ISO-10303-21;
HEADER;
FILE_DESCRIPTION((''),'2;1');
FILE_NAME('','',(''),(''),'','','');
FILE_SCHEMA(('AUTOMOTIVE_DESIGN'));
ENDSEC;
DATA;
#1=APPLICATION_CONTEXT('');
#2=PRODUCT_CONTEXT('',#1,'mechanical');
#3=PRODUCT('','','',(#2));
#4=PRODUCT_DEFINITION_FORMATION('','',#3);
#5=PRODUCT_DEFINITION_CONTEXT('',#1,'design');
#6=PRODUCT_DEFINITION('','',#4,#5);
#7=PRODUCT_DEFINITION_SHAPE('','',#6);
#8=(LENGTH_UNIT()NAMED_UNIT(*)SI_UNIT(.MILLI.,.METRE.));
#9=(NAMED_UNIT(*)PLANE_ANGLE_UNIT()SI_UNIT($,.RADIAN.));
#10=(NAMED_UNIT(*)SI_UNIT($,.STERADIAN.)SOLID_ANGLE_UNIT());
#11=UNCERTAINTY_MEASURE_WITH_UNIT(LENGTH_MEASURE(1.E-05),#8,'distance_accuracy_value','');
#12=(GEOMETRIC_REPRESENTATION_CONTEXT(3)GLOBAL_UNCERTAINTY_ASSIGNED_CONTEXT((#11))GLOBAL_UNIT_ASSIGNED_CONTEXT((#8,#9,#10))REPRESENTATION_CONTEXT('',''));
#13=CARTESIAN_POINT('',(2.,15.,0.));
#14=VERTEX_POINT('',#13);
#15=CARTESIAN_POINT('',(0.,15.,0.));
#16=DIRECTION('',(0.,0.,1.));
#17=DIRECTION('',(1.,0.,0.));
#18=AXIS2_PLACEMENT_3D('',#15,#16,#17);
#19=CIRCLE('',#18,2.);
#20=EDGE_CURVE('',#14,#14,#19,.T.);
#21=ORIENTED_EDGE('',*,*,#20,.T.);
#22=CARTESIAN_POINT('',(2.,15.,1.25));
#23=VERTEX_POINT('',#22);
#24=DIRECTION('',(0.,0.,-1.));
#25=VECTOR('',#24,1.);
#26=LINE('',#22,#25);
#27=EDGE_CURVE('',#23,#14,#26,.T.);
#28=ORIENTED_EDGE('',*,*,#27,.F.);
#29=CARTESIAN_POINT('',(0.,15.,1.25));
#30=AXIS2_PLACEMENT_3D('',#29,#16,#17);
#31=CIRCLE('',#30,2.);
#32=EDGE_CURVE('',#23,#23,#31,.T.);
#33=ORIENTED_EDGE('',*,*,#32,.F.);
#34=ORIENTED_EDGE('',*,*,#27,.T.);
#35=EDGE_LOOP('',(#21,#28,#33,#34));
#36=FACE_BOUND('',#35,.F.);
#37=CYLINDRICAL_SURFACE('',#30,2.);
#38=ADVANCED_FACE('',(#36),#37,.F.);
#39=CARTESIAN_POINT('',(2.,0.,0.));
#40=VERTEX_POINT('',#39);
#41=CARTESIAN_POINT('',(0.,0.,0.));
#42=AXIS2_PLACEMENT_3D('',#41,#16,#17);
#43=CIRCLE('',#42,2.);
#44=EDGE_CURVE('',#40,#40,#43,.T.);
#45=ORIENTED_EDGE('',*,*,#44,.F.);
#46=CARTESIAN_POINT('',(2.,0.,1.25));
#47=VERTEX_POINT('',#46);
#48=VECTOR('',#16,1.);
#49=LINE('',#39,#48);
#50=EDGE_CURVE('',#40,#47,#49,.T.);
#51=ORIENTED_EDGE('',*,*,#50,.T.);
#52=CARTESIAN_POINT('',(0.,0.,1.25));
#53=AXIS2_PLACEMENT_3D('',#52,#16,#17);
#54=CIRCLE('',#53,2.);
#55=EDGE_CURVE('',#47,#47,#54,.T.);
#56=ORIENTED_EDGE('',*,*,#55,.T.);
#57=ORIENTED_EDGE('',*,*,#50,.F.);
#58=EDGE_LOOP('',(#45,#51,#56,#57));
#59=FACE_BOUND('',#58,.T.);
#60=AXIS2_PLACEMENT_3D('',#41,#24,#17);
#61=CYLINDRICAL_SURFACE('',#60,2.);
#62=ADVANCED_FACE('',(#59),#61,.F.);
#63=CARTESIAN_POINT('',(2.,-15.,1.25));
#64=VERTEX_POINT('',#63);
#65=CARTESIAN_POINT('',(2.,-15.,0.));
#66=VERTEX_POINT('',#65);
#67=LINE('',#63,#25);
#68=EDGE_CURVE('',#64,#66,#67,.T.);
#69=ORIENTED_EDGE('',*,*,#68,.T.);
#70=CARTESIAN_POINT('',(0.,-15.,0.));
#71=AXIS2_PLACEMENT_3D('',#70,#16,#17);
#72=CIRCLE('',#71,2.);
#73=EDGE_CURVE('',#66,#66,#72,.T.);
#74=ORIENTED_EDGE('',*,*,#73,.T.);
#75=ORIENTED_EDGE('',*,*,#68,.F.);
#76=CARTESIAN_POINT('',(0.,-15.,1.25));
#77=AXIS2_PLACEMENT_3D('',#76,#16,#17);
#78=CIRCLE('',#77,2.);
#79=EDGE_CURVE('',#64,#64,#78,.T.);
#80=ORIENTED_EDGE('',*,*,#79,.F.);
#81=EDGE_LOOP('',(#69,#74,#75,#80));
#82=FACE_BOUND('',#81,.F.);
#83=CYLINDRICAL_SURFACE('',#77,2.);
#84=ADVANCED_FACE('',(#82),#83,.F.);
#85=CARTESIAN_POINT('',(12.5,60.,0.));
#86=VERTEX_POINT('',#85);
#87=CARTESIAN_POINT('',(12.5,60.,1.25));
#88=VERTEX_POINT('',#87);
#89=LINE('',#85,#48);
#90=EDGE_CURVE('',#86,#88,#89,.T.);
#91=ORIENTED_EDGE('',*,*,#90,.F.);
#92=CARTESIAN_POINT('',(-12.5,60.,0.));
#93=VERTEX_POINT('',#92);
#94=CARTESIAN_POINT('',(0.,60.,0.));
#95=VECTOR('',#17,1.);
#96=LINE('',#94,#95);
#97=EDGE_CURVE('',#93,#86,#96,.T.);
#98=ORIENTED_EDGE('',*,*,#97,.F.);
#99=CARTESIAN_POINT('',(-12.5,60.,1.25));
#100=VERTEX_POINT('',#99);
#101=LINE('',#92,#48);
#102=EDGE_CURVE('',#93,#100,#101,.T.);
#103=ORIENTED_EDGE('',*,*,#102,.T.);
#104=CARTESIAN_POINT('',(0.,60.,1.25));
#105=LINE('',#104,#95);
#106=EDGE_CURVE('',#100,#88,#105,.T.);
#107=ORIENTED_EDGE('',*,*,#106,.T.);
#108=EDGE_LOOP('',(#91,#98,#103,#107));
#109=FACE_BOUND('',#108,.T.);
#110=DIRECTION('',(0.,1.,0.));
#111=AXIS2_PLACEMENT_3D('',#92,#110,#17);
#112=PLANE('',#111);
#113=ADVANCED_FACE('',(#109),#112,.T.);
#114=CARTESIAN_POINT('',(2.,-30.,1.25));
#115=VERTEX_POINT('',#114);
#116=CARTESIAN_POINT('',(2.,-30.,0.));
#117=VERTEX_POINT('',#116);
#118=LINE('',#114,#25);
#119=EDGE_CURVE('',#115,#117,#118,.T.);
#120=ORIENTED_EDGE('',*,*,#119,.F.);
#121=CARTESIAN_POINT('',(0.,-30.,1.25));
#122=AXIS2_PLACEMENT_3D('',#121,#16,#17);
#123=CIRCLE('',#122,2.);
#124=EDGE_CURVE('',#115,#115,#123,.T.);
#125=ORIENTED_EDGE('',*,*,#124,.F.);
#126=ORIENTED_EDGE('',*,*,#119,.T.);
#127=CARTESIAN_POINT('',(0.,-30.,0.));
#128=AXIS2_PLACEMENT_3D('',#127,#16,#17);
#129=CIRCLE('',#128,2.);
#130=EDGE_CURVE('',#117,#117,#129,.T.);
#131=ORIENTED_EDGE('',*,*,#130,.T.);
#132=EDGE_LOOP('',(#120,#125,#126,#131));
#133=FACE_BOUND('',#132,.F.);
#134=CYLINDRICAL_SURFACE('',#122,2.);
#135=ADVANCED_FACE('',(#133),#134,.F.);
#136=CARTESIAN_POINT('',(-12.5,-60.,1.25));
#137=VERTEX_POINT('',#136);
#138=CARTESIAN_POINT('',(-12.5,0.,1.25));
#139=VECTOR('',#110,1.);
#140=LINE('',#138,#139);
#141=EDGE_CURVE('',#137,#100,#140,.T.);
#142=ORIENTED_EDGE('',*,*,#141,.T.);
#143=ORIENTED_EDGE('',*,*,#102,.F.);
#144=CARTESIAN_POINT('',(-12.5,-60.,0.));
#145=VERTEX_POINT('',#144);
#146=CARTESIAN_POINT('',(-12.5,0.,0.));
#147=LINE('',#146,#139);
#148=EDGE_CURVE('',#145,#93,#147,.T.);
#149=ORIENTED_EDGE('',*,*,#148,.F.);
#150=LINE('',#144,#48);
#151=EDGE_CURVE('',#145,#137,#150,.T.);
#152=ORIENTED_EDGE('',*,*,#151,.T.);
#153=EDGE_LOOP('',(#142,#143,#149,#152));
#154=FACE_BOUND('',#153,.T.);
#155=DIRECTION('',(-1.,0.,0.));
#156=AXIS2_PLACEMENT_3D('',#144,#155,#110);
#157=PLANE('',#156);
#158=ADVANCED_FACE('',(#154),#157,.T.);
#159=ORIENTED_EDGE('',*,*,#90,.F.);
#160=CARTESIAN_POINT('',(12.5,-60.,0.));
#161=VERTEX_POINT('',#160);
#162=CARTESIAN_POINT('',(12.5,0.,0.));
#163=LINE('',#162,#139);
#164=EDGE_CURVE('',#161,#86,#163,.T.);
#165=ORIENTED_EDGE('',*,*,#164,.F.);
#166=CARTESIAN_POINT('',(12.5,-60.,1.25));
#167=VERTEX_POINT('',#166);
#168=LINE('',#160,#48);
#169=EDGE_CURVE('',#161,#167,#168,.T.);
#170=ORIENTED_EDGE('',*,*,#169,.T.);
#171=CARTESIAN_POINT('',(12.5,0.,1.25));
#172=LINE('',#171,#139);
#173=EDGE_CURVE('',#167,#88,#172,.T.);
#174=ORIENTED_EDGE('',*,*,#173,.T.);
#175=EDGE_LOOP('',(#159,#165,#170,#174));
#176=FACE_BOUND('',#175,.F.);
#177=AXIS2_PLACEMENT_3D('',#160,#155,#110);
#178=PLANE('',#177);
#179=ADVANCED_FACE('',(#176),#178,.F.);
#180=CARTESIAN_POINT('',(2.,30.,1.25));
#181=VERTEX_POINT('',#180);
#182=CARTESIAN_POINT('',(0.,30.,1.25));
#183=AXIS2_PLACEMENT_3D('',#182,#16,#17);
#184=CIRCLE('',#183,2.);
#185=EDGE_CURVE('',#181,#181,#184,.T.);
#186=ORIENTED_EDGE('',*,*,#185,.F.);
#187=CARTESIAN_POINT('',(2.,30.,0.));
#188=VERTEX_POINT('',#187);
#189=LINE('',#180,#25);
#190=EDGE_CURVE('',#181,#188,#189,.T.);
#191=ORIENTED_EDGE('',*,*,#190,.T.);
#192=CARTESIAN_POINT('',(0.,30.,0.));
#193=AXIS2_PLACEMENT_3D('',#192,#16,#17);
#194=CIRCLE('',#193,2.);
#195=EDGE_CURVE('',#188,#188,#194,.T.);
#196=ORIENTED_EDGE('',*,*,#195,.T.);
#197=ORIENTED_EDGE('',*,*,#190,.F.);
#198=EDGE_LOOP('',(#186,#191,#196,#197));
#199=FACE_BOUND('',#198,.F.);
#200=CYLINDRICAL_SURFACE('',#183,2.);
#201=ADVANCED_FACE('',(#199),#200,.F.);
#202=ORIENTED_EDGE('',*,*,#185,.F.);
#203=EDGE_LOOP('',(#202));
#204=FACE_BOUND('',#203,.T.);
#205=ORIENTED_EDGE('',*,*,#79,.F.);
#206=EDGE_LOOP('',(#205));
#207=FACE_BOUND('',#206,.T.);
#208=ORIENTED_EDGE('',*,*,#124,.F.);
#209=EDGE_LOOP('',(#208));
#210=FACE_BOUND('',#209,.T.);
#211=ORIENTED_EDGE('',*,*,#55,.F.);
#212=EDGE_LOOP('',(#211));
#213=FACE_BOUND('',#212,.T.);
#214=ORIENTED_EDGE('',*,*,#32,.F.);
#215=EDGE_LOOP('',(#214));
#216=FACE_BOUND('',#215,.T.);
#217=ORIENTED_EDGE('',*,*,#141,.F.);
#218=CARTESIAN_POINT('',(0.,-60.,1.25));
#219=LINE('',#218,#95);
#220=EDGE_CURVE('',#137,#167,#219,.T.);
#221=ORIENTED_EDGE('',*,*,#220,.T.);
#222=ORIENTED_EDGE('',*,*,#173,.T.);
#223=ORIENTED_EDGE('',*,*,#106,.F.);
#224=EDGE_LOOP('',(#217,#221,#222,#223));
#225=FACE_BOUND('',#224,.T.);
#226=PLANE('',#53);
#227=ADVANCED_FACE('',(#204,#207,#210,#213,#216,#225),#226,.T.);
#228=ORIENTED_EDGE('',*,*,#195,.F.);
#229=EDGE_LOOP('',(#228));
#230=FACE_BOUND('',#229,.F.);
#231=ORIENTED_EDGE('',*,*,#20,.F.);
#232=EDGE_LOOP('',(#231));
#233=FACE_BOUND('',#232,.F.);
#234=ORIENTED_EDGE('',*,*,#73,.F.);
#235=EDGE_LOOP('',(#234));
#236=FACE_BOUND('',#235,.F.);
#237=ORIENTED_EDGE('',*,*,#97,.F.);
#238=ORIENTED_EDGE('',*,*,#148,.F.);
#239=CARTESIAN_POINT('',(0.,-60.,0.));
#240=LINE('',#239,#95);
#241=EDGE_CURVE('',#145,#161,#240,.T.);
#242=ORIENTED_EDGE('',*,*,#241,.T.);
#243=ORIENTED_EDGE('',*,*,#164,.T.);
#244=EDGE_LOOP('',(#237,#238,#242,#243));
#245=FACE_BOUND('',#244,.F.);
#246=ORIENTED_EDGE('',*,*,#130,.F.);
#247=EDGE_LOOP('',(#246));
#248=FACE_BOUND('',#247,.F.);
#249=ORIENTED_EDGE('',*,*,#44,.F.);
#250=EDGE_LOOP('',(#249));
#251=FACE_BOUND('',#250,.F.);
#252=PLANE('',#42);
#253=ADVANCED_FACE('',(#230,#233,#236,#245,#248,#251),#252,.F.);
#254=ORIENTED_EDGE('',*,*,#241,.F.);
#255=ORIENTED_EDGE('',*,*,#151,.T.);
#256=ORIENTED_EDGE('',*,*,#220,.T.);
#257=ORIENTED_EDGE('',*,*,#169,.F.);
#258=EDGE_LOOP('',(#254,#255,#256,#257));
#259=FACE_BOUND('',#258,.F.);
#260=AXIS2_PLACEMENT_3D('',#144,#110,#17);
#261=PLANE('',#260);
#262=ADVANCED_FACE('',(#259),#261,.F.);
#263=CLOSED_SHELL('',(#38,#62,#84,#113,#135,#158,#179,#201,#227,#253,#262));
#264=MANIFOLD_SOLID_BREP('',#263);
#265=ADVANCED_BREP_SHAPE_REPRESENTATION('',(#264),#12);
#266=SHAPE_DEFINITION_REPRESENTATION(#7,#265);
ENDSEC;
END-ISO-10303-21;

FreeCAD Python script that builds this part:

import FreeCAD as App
import Part
import Sketcher

V = App.Vector
Q = App.Units.Quantity


def add_polygon(sketch, points):
    """Adds a closed chain of lines whose ends are joined by coincident constraints."""
    first, n = sketch.GeometryCount, len(points)
    for a, b in zip(points, points[1:] + points[:1]):
        sketch.addGeometry(Part.LineSegment(App.Vector(*a, 0), App.Vector(*b, 0)), False)
    for i in range(n):
        sketch.addConstraint(Sketcher.Constraint("Coincident", first + i, 2, first + (i + 1) % n, 1))

doc = App.newDocument("Part")
body = doc.addObject("PartDesign::Body", "Body")

sketch1 = body.newObject("Sketcher::SketchObject", "Sketch")
sketch1.AttachmentSupport = (doc.getObject("XY_Plane"), [""])
sketch1.MapMode = "FlatFace"
add_polygon(sketch1, [(-12.5, 60), (-12.5, -60), (12.5, -60), (12.5, 60)])
sketch1.addGeometry(Part.Circle(V(0, 0, 0), V(0, 0, 1), 2), False)
sketch1.addConstraint([
    Sketcher.Constraint("Vertical", 0),
    Sketcher.Constraint("Horizontal", 1),
    Sketcher.Constraint("Vertical", 2),
    Sketcher.Constraint("Horizontal", 3),
    Sketcher.Constraint("Coincident", 4, 3, -1, 1),
    Sketcher.Constraint("Symmetric", 0, 2, 2, 2, -1, 1),
    Sketcher.Constraint("Diameter", 4, Q("4 mm")),
    Sketcher.Constraint("DistanceX", 1, 1, 1, 2, Q("25 mm")),
    Sketcher.Constraint("DistanceY", 0, 2, 0, 1, Q("120 mm")),
])
pad1 = body.newObject("PartDesign::Pad", "Pad")
pad1.Profile = sketch1
pad1.Length = 1.25

sketch2 = body.newObject("Sketcher::SketchObject", "Sketch001")
sketch2.AttachmentSupport = (doc.getObject("XY_Plane"), [""])
sketch2.MapMode = "FlatFace"
sketch2.AttachmentOffset = App.Placement(V(0, 0, 1.25), App.Rotation())
sketch2.addGeometry([
    Part.Circle(V(0, -30, 0), V(0, 0, 1), 2),
    Part.Circle(V(0, -15, 0), V(0, 0, 1), 2),
    Part.Circle(V(0, 15, 0), V(0, 0, 1), 2),
    Part.Circle(V(0, 30, 0), V(0, 0, 1), 2),
], False)
sketch2.addConstraint([
    Sketcher.Constraint("Equal", 0, 1),
    Sketcher.Constraint("Equal", 1, 2),
    Sketcher.Constraint("Equal", 2, 3),
    Sketcher.Constraint("Symmetric", 1, 3, 2, 3, -1, 1),
    Sketcher.Constraint("Symmetric", 0, 3, 3, 3, -1, 1),
    Sketcher.Constraint("PointOnObject", 0, 3, -2),
    Sketcher.Constraint("PointOnObject", 1, 3, -2),
    Sketcher.Constraint("Diameter", 0, Q("4 mm")),
    Sketcher.Constraint("DistanceY", 0, 3, -1, 1, Q("30 mm")),
    Sketcher.Constraint("DistanceY", 1, 3, -1, 1, Q("15 mm")),
])
pocket1 = body.newObject("PartDesign::Pocket", "Pocket")
pocket1.Profile = sketch2
pocket1.Length = 25

doc.recompute()
